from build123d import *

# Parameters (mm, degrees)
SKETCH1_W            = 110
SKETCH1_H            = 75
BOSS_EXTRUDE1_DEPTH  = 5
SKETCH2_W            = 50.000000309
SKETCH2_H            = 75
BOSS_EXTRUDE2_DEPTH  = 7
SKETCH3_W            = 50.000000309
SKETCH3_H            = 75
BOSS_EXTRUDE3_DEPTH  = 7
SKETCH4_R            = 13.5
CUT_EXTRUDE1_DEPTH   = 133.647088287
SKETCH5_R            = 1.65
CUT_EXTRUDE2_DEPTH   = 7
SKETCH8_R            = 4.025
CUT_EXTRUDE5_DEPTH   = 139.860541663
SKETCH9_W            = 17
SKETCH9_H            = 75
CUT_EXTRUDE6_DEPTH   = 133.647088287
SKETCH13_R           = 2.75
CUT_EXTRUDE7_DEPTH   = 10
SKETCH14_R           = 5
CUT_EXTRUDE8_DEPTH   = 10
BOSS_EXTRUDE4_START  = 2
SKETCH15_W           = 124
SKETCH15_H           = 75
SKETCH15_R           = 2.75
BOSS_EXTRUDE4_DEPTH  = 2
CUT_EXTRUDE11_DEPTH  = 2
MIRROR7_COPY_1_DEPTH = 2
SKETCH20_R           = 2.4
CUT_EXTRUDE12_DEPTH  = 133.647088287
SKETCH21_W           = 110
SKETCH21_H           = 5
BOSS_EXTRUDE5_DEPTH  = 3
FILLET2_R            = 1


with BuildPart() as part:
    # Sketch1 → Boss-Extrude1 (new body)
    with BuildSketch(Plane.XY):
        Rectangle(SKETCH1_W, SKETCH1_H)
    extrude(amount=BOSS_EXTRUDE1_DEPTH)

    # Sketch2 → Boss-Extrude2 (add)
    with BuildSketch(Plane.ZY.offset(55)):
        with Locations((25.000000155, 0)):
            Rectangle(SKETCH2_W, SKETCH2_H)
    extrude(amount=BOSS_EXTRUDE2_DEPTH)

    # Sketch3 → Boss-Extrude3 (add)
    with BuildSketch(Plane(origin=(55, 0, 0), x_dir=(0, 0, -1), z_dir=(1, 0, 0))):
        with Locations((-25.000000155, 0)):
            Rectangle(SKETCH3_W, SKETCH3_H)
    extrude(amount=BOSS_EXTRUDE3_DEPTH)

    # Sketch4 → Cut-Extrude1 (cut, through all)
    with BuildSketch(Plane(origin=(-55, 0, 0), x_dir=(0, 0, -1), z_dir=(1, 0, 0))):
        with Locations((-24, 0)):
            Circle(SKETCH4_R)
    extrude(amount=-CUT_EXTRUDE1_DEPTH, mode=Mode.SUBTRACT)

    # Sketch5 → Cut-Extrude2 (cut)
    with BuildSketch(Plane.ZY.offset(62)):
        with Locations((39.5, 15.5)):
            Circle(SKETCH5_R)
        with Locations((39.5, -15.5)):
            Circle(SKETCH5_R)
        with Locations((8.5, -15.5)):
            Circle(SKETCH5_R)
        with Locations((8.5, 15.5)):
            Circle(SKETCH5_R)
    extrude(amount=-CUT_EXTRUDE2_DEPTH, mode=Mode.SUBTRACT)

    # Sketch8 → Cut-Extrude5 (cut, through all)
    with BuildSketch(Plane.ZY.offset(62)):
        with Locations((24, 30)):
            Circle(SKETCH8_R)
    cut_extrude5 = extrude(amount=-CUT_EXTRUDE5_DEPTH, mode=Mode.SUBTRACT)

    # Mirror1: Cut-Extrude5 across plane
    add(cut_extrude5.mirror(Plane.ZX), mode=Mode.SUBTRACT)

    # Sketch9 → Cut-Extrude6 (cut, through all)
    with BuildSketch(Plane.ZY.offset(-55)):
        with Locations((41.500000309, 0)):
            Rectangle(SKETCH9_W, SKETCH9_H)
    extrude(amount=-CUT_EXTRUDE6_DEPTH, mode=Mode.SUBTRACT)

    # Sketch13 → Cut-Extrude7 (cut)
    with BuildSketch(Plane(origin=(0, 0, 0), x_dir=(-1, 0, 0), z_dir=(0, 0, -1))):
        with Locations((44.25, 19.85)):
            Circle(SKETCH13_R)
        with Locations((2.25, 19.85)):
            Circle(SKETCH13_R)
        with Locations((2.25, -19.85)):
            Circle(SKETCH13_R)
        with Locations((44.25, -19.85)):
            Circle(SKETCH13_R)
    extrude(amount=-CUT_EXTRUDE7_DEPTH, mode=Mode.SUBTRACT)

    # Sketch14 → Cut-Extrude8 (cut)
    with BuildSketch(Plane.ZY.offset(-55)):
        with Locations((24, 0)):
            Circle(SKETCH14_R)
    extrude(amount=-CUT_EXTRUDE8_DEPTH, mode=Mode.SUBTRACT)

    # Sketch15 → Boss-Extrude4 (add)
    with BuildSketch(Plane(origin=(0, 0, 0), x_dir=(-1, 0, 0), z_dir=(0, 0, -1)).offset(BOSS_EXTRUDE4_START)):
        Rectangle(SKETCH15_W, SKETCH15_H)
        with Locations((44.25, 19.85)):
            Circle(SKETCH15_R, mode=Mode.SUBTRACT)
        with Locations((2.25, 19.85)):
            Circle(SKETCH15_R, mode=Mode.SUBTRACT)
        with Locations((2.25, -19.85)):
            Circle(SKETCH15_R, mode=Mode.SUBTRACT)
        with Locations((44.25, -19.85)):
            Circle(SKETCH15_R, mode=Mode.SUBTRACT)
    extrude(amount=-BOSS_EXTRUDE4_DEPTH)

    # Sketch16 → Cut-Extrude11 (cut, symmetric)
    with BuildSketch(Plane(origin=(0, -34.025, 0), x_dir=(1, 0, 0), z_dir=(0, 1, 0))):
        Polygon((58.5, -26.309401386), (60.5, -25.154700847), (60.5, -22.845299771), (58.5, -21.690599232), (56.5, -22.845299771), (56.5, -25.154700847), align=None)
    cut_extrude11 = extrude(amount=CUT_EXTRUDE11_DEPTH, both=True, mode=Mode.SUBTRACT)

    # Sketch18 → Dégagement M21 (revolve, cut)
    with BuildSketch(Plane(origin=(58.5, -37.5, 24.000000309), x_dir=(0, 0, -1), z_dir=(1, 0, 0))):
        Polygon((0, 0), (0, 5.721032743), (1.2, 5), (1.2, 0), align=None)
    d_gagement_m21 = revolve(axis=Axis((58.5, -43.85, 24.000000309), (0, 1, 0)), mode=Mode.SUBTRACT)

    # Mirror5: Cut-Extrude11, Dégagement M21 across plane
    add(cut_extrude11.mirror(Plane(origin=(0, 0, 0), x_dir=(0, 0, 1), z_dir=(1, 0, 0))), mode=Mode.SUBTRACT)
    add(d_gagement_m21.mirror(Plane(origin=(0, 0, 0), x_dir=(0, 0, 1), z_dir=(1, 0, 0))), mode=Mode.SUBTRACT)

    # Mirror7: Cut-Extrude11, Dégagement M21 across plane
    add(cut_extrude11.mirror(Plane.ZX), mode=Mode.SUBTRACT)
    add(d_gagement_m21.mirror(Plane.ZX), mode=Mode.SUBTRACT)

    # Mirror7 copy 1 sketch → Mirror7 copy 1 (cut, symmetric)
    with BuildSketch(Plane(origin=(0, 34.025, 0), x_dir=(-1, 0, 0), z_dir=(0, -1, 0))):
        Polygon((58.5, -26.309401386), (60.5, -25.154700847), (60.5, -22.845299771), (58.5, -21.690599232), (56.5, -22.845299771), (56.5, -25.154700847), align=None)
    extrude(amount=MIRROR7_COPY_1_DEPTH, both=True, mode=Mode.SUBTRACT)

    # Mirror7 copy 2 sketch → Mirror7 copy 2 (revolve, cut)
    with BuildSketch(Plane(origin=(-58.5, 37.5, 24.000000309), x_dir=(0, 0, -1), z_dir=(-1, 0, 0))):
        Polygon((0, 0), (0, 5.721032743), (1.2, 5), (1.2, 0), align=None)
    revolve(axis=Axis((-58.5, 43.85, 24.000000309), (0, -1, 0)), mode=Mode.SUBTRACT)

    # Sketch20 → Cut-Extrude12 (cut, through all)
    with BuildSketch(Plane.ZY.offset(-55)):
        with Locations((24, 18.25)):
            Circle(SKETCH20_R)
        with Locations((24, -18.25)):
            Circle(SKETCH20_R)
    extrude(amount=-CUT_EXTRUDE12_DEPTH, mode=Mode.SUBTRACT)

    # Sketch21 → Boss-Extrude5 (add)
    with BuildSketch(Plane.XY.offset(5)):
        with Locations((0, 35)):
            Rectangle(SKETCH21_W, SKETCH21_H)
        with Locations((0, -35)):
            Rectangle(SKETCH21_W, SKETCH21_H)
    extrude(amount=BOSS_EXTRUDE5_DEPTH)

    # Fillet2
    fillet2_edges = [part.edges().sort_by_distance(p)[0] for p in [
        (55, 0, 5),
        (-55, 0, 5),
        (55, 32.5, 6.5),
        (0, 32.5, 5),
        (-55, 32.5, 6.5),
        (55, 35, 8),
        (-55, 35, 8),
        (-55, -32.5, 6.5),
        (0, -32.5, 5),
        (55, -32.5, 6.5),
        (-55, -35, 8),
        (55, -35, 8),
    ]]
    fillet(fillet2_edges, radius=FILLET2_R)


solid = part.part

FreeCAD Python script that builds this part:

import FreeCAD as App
import Part
import Sketcher
from FreeCAD import Vector
Q = App.Units.Quantity


def edges_at(feature, points):
    """Names of the edges that pass closest to the given points."""
    edges = feature.Shape.Edges
    near = lambda p: min(range(len(edges)), key=lambda i: edges[i].distToShape(Part.Vertex(*p))[0])
    return sorted({f"Edge{near(p) + 1}" for p in points})

doc = App.newDocument("Part")
body = doc.addObject("PartDesign::Body", "Body")

sketch1 = body.newObject("Sketcher::SketchObject", "Sketch")
sketch1.AttachmentSupport = (doc.getObject("XY_Plane"), [""])
sketch1.MapMode = "FlatFace"
sketch1.addGeometry([
    Part.LineSegment(Vector(-55, 38, 0), Vector(-55, -38, 0)),
    Part.LineSegment(Vector(-55, -38, 0), Vector(55, -38, 0)),
    Part.LineSegment(Vector(55, -38, 0), Vector(55, 38, 0)),
    Part.LineSegment(Vector(55, 38, 0), Vector(-55, 38, 0)),
], False)
sketch1.addConstraint([
    Sketcher.Constraint("Coincident", 0, 2, 1, 1),
    Sketcher.Constraint("Coincident", 1, 2, 2, 1),
    Sketcher.Constraint("Coincident", 2, 2, 3, 1),
    Sketcher.Constraint("Coincident", 3, 2, 0, 1),
    Sketcher.Constraint("Vertical", 0),
    Sketcher.Constraint("Horizontal", 1),
    Sketcher.Constraint("Vertical", 2),
    Sketcher.Constraint("Horizontal", 3),
    Sketcher.Constraint("Symmetric", 0, 2, 2, 2, -1, 1),
    Sketcher.Constraint("DistanceX", 1, 1, 1, 2, Q("110 mm")),
    Sketcher.Constraint("DistanceY", 0, 2, 0, 1, Q("75 mm")),
])
pad1 = body.newObject("PartDesign::Pad", "Pad")
pad1.Profile = sketch1
pad1.Length = 5

sketch2 = body.newObject("Sketcher::SketchObject", "Sketch001")
sketch2.AttachmentSupport = (doc.getObject("YZ_Plane"), [""])
sketch2.MapMode = "FlatFace"
sketch2.AttachmentOffset = App.Placement(Vector(0, 0, -55), App.Rotation())
sketch2.addGeometry([
    Part.LineSegment(Vector(38, 0, 0), Vector(-38, 0, 0)),
    Part.LineSegment(Vector(-38, 0, 0), Vector(-38, 50, 0)),
    Part.LineSegment(Vector(-38, 50, 0), Vector(38, 50, 0)),
    Part.LineSegment(Vector(38, 50, 0), Vector(38, 0, 0)),
], False)
sketch2.addConstraint([
    Sketcher.Constraint("Coincident", 0, 2, 1, 1),
    Sketcher.Constraint("Coincident", 1, 2, 2, 1),
    Sketcher.Constraint("Coincident", 2, 2, 3, 1),
    Sketcher.Constraint("Coincident", 3, 2, 0, 1),
    Sketcher.Constraint("Horizontal", 0),
    Sketcher.Constraint("Vertical", 1),
    Sketcher.Constraint("Horizontal", 2),
    Sketcher.Constraint("Vertical", 3),
    Sketcher.Constraint("Symmetric", 0, 2, 3, 2, -1, 1),
    Sketcher.Constraint("DistanceX", 0, 2, 0, 1, Q("75 mm")),
    Sketcher.Constraint("DistanceY", 1, 1, 1, 2, Q("50 mm")),
])
pad2 = body.newObject("PartDesign::Pad", "Pad001")
pad2.Profile = sketch2
pad2.Length = 7
pad2.Reversed = True

sketch3 = body.newObject("Sketcher::SketchObject", "Sketch002")
sketch3.AttachmentSupport = (doc.getObject("YZ_Plane"), [""])
sketch3.MapMode = "FlatFace"
sketch3.AttachmentOffset = App.Placement(Vector(0, 0, 55), App.Rotation())
sketch3.addGeometry([
    Part.LineSegment(Vector(38, 50, 0), Vector(-38, 50, 0)),
    Part.LineSegment(Vector(-38, 50, 0), Vector(-38, 0, 0)),
    Part.LineSegment(Vector(-38, 0, 0), Vector(38, 0, 0)),
    Part.LineSegment(Vector(38, 0, 0), Vector(38, 50, 0)),
], False)
sketch3.addConstraint([
    Sketcher.Constraint("Coincident", 0, 2, 1, 1),
    Sketcher.Constraint("Coincident", 1, 2, 2, 1),
    Sketcher.Constraint("Coincident", 2, 2, 3, 1),
    Sketcher.Constraint("Coincident", 3, 2, 0, 1),
    Sketcher.Constraint("Horizontal", 0),
    Sketcher.Constraint("Vertical", 1),
    Sketcher.Constraint("Horizontal", 2),
    Sketcher.Constraint("Vertical", 3),
    Sketcher.Constraint("Symmetric", 1, 2, 2, 2, -1, 1),
    Sketcher.Constraint("DistanceX", 0, 2, 0, 1, Q("75 mm")),
    Sketcher.Constraint("DistanceY", 1, 2, 1, 1, Q("50 mm")),
])
pad3 = body.newObject("PartDesign::Pad", "Pad002")
pad3.Profile = sketch3
pad3.Length = 7

sketch4 = body.newObject("Sketcher::SketchObject", "Sketch003")
sketch4.AttachmentSupport = (doc.getObject("YZ_Plane"), [""])
sketch4.MapMode = "FlatFace"
sketch4.AttachmentOffset = App.Placement(Vector(0, 0, -55), App.Rotation())
sketch4.addGeometry(Part.Circle(Vector(0, 24, 0), Vector(0, 0, 1), 14), False)
sketch4.addConstraint([
    Sketcher.Constraint("PointOnObject", 0, 3, -2),
    Sketcher.Constraint("Diameter", 0, Q("27 mm")),
    Sketcher.Constraint("DistanceY", -1, 1, 0, 3, Q("24 mm")),
])
pocket1 = body.newObject("PartDesign::Pocket", "Pocket")
pocket1.Profile = sketch4
pocket1.Type = "ThroughAll"

sketch5 = body.newObject("Sketcher::SketchObject", "Sketch004")
sketch5.AttachmentSupport = (doc.getObject("YZ_Plane"), [""])
sketch5.MapMode = "FlatFace"
sketch5.AttachmentOffset = App.Placement(Vector(0, 0, -62), App.Rotation())
sketch5.addGeometry([
    Part.Circle(Vector(15.5, 39.5, 0), Vector(0, 0, 1), 1.6),
    Part.Circle(Vector(-15.5, 39.5, 0), Vector(0, 0, 1), 1.6),
    Part.Circle(Vector(-15.5, 8.5, 0), Vector(0, 0, 1), 1.6),
    Part.Circle(Vector(15.5, 8.5, 0), Vector(0, 0, 1), 1.6),
], False)
sketch5.addConstraint([
    Sketcher.Constraint("Equal", 0, 1),
    Sketcher.Constraint("Equal", 1, 2),
    Sketcher.Constraint("Equal", 2, 3),
    Sketcher.Constraint("Symmetric", 0, 3, 1, 3, -2),
    Sketcher.Constraint("Symmetric", 2, 3, 3, 3, -2),
    Sketcher.Constraint("Vertical", 1, 3, 2, 3),
    Sketcher.Constraint("Diameter", 0, Q("3.3 mm")),
    Sketcher.Constraint("DistanceX", 1, 3, 0, 3, Q("31 mm")),
    Sketcher.Constraint("DistanceY", 2, 3, 1, 3, Q("31 mm")),
    Sketcher.Constraint("DistanceY", -1, 1, 0, 3, Q("39.5 mm")),
])
pocket2 = body.newObject("PartDesign::Pocket", "Pocket001")
pocket2.Profile = sketch5
pocket2.Length = 7
pocket2.Reversed = True

sketch6 = body.newObject("Sketcher::SketchObject", "Sketch005")
sketch6.AttachmentSupport = (doc.getObject("YZ_Plane"), [""])
sketch6.MapMode = "FlatFace"
sketch6.AttachmentOffset = App.Placement(Vector(0, 0, -62), App.Rotation())
sketch6.addGeometry(Part.Circle(Vector(30, 24, 0), Vector(0, 0, 1), 4), False)
sketch6.addConstraint([
    Sketcher.Constraint("Diameter", 0, Q("8.05 mm")),
    Sketcher.Constraint("DistanceX", -1, 1, 0, 3, Q("30 mm")),
    Sketcher.Constraint("DistanceY", -1, 1, 0, 3, Q("24 mm")),
])
pocket3 = body.newObject("PartDesign::Pocket", "Pocket002")
pocket3.Profile = sketch6
pocket3.Type = "ThroughAll"
pocket3.Reversed = True
doc.recompute()

mirrored = body.newObject("PartDesign::Mirrored", "Mirrored")
mirrored.Originals = [pocket3]
mirrored.MirrorPlane = (doc.getObject("XZ_Plane"), [""])
body.Tip = mirrored

sketch7 = body.newObject("Sketcher::SketchObject", "Sketch006")
sketch7.AttachmentSupport = (doc.getObject("YZ_Plane"), [""])
sketch7.MapMode = "FlatFace"
sketch7.AttachmentOffset = App.Placement(Vector(0, 0, 55), App.Rotation())
sketch7.addGeometry([
    Part.LineSegment(Vector(38, 33, 0), Vector(-38, 33, 0)),
    Part.LineSegment(Vector(-38, 33, 0), Vector(-38, 50, 0)),
    Part.LineSegment(Vector(-38, 50, 0), Vector(38, 50, 0)),
    Part.LineSegment(Vector(38, 50, 0), Vector(38, 33, 0)),
], False)
sketch7.addConstraint([
    Sketcher.Constraint("Coincident", 0, 2, 1, 1),
    Sketcher.Constraint("Coincident", 1, 2, 2, 1),
    Sketcher.Constraint("Coincident", 2, 2, 3, 1),
    Sketcher.Constraint("Coincident", 3, 2, 0, 1),
    Sketcher.Constraint("Horizontal", 0),
    Sketcher.Constraint("Vertical", 1),
    Sketcher.Constraint("Horizontal", 2),
    Sketcher.Constraint("Vertical", 3),
    Sketcher.Constraint("DistanceX", 0, 2, 0, 1, Q("75 mm")),
    Sketcher.Constraint("DistanceY", 1, 1, 1, 2, Q("17 mm")),
    Sketcher.Constraint("DistanceY", -1, 1, 0, 2, Q("33 mm")),
    Sketcher.Constraint("DistanceX", 0, 2, -1, 1, Q("37.5 mm")),
])
pocket4 = body.newObject("PartDesign::Pocket", "Pocket003")
pocket4.Profile = sketch7
pocket4.Type = "ThroughAll"
pocket4.Reversed = True

sketch8 = body.newObject("Sketcher::SketchObject", "Sketch007")
sketch8.AttachmentSupport = (doc.getObject("XY_Plane"), [""])
sketch8.MapMode = "FlatFace"
sketch8.addGeometry([
    Part.Circle(Vector(-44.2, 19.9, 0), Vector(0, 0, 1), 2.8),
    Part.Circle(Vector(-2.2, 19.9, 0), Vector(0, 0, 1), 2.8),
    Part.Circle(Vector(-2.2, -19.9, 0), Vector(0, 0, 1), 2.8),
    Part.Circle(Vector(-44.2, -19.9, 0), Vector(0, 0, 1), 2.8),
], False)
sketch8.addConstraint([
    Sketcher.Constraint("Equal", 0, 1),
    Sketcher.Constraint("Equal", 1, 2),
    Sketcher.Constraint("Equal", 2, 3),
    Sketcher.Constraint("Symmetric", 1, 3, 2, 3, -1),
    Sketcher.Constraint("Symmetric", 0, 3, 3, 3, -1),
    Sketcher.Constraint("Horizontal", 0, 3, 1, 3),
    Sketcher.Constraint("Diameter", 0, Q("5.5 mm")),
    Sketcher.Constraint("DistanceX", 0, 3, 1, 3, Q("42 mm")),
    Sketcher.Constraint("DistanceY", 2, 3, 1, 3, Q("39.7 mm")),
    Sketcher.Constraint("DistanceX", 0, 3, -1, 1, Q("44.25 mm")),
])
pocket5 = body.newObject("PartDesign::Pocket", "Pocket004")
pocket5.Profile = sketch8
pocket5.Length = 10
pocket5.Reversed = True

sketch9 = body.newObject("Sketcher::SketchObject", "Sketch008")
sketch9.AttachmentSupport = (doc.getObject("YZ_Plane"), [""])
sketch9.MapMode = "FlatFace"
sketch9.AttachmentOffset = App.Placement(Vector(0, 0, 55), App.Rotation())
sketch9.addGeometry(Part.Circle(Vector(0, 24, 0), Vector(0, 0, 1), 5), False)
sketch9.addConstraint([
    Sketcher.Constraint("PointOnObject", 0, 3, -2),
    Sketcher.Constraint("Diameter", 0, Q("10 mm")),
    Sketcher.Constraint("DistanceY", -1, 1, 0, 3, Q("24 mm")),
])
pocket6 = body.newObject("PartDesign::Pocket", "Pocket005")
pocket6.Profile = sketch9
pocket6.Length = 10
pocket6.Reversed = True

sketch10 = body.newObject("Sketcher::SketchObject", "Sketch009")
sketch10.AttachmentSupport = (doc.getObject("XY_Plane"), [""])
sketch10.MapMode = "FlatFace"
sketch10.AttachmentOffset = App.Placement(Vector(0, 0, -2), App.Rotation())
sketch10.addGeometry([
    Part.LineSegment(Vector(62, 37.5, 0), Vector(62, -37.5, 0)),
    Part.LineSegment(Vector(62, -37.5, 0), Vector(-62, -37.5, 0)),
    Part.LineSegment(Vector(-62, -37.5, 0), Vector(-62, 37.5, 0)),
    Part.LineSegment(Vector(-62, 37.5, 0), Vector(62, 37.5, 0)),
    Part.Circle(Vector(-2.2, -19.9, 0), Vector(0, 0, 1), 2.8),
    Part.Circle(Vector(-44.2, -19.9, 0), Vector(0, 0, 1), 2.8),
    Part.Circle(Vector(-2.2, 19.9, 0), Vector(0, 0, 1), 2.8),
    Part.Circle(Vector(-44.2, 19.9, 0), Vector(0, 0, 1), 2.8),
], False)
sketch10.addConstraint([
    Sketcher.Constraint("Coincident", 0, 2, 1, 1),
    Sketcher.Constraint("Coincident", 1, 2, 2, 1),
    Sketcher.Constraint("Coincident", 2, 2, 3, 1),
    Sketcher.Constraint("Coincident", 3, 2, 0, 1),
    Sketcher.Constraint("Vertical", 0),
    Sketcher.Constraint("Horizontal", 1),
    Sketcher.Constraint("Vertical", 2),
    Sketcher.Constraint("Horizontal", 3),
    Sketcher.Constraint("Equal", 4, 5),
    Sketcher.Constraint("Equal", 5, 6),
    Sketcher.Constraint("Equal", 6, 7),
    Sketcher.Constraint("Symmetric", 0, 2, 2, 2, -1, 1),
    Sketcher.Constraint("Symmetric", 4, 3, 6, 3, -1),
    Sketcher.Constraint("Symmetric", 5, 3, 7, 3, -1),
    Sketcher.Constraint("Horizontal", 4, 3, 5, 3),
    Sketcher.Constraint("Diameter", 4, Q("5.5 mm")),
    Sketcher.Constraint("DistanceX", 1, 2, 1, 1, Q("124 mm")),
    Sketcher.Constraint("DistanceY", 0, 2, 0, 1, Q("75 mm")),
    Sketcher.Constraint("DistanceX", 5, 3, 4, 3, Q("42 mm")),
    Sketcher.Constraint("DistanceY", 4, 3, 6, 3, Q("39.7 mm")),
    Sketcher.Constraint("DistanceX", 4, 3, -1, 1, Q("2.25 mm")),
])
pad4 = body.newObject("PartDesign::Pad", "Pad003")
pad4.Profile = sketch10
pad4.Length = 2

sketch11 = body.newObject("Sketcher::SketchObject", "Sketch010")
sketch11.AttachmentSupport = (doc.getObject("XZ_Plane"), [""])
sketch11.MapMode = "FlatFace"
sketch11.AttachmentOffset = App.Placement(Vector(0, 0, 34.025), App.Rotation())
sketch11.addGeometry([
    Part.LineSegment(Vector(58.5, 26.3, 0), Vector(60.5, 25.2, 0)),
    Part.LineSegment(Vector(60.5, 25.2, 0), Vector(60.5, 22.8, 0)),
    Part.LineSegment(Vector(60.5, 22.8, 0), Vector(58.5, 21.7, 0)),
    Part.LineSegment(Vector(58.5, 21.7, 0), Vector(56.5, 22.8, 0)),
    Part.LineSegment(Vector(56.5, 22.8, 0), Vector(56.5, 25.2, 0)),
    Part.LineSegment(Vector(56.5, 25.2, 0), Vector(58.5, 26.3, 0)),
], False)
sketch11.addConstraint([
    Sketcher.Constraint("Coincident", 0, 2, 1, 1),
    Sketcher.Constraint("Coincident", 1, 2, 2, 1),
    Sketcher.Constraint("Coincident", 2, 2, 3, 1),
    Sketcher.Constraint("Coincident", 3, 2, 4, 1),
    Sketcher.Constraint("Coincident", 4, 2, 5, 1),
    Sketcher.Constraint("Coincident", 5, 2, 0, 1),
    Sketcher.Constraint("Vertical", 1),
    Sketcher.Constraint("Vertical", 4),
    Sketcher.Constraint("Parallel", 0, 3),
    Sketcher.Constraint("Parallel", 2, 5),
    Sketcher.Constraint("Horizontal", 1, 2, 3, 2),
    Sketcher.Constraint("Horizontal", 0, 2, 4, 2),
    Sketcher.Constraint("Vertical", 2, 2, 5, 2),
    Sketcher.Constraint("Angle", 0, Q("-30 deg")),
    Sketcher.Constraint("DistanceX", 2, 2, 1, 2, Q("2 mm")),
    Sketcher.Constraint("DistanceX", -1, 1, 0, 2, Q("60.5 mm")),
    Sketcher.Constraint("DistanceY", 1, 2, 1, 1, Q("2.309401 mm")),
    Sketcher.Constraint("DistanceY", -1, 1, 0, 2, Q("25.154701 mm")),
])
pocket7 = body.newObject("PartDesign::Pocket", "Pocket006")
pocket7.Profile = sketch11
pocket7.Length = 4
pocket7.Midplane = True

sketch12 = body.newObject("Sketcher::SketchObject", "Sketch011")
sketch12.AttachmentSupport = (doc.getObject("YZ_Plane"), [""])
sketch12.MapMode = "FlatFace"
sketch12.AttachmentOffset = App.Placement(Vector(0, 0, 58.5), App.Rotation())
sketch12.addGeometry([
    Part.LineSegment(Vector(-31.8, 24, 0), Vector(-37.5, 24, 0)),
    Part.LineSegment(Vector(-37.5, 24, 0), Vector(-37.5, 22.8, 0)),
    Part.LineSegment(Vector(-37.5, 22.8, 0), Vector(-32.5, 22.8, 0)),
    Part.LineSegment(Vector(-32.5, 22.8, 0), Vector(-31.8, 24, 0)),
], False)
sketch12.addGeometry(Part.LineSegment(Vector(-37.5, 24, 0), Vector(-31.8, 24, 0)), True)
sketch12.addConstraint([
    Sketcher.Constraint("Coincident", 0, 2, 1, 1),
    Sketcher.Constraint("Coincident", 1, 2, 2, 1),
    Sketcher.Constraint("Coincident", 2, 2, 3, 1),
    Sketcher.Constraint("Coincident", 3, 2, 0, 1),
    Sketcher.Constraint("Horizontal", 0),
    Sketcher.Constraint("Vertical", 1),
    Sketcher.Constraint("Horizontal", 2),
    Sketcher.Constraint("Horizontal", 4),
    Sketcher.Constraint("Coincident", 4, 1, 0, 2),
    Sketcher.Constraint("Equal", 0, 4),
    Sketcher.Constraint("DistanceX", 2, 1, 2, 2, Q("5 mm")),
    Sketcher.Constraint("Angle", 3, Q("59 deg")),
    Sketcher.Constraint("DistanceY", 1, 2, 1, 1, Q("1.2 mm")),
    Sketcher.Constraint("DistanceY", -1, 1, 0, 2, Q("24 mm")),
    Sketcher.Constraint("DistanceX", 0, 2, -1, 1, Q("37.5 mm")),
])
groove = body.newObject("PartDesign::Groove", "Groove")
groove.Profile = sketch12
groove.ReferenceAxis = (sketch12, ["Axis0"])
groove.Angle = 360
doc.recompute()

mirrored2 = body.newObject("PartDesign::Mirrored", "Mirrored001")
mirrored2.Originals = [pocket7, groove]
mirrored2.MirrorPlane = (doc.getObject("YZ_Plane"), [""])
body.Tip = mirrored2
doc.recompute()

mirrored3 = body.newObject("PartDesign::Mirrored", "Mirrored002")
mirrored3.Originals = [pocket7, groove]
mirrored3.MirrorPlane = (doc.getObject("XZ_Plane"), [""])
body.Tip = mirrored3

sketch13 = body.newObject("Sketcher::SketchObject", "Sketch012")
sketch13.AttachmentSupport = (doc.getObject("XZ_Plane"), [""])
sketch13.MapMode = "FlatFace"
sketch13.AttachmentOffset = App.Placement(Vector(0, 0, -34.025), App.Rotation())
sketch13.addGeometry([
    Part.LineSegment(Vector(-58.5, 26.3, 0), Vector(-60.5, 25.2, 0)),
    Part.LineSegment(Vector(-60.5, 25.2, 0), Vector(-60.5, 22.8, 0)),
    Part.LineSegment(Vector(-60.5, 22.8, 0), Vector(-58.5, 21.7, 0)),
    Part.LineSegment(Vector(-58.5, 21.7, 0), Vector(-56.5, 22.8, 0)),
    Part.LineSegment(Vector(-56.5, 22.8, 0), Vector(-56.5, 25.2, 0)),
    Part.LineSegment(Vector(-56.5, 25.2, 0), Vector(-58.5, 26.3, 0)),
], False)
sketch13.addConstraint([
    Sketcher.Constraint("Coincident", 0, 2, 1, 1),
    Sketcher.Constraint("Coincident", 1, 2, 2, 1),
    Sketcher.Constraint("Coincident", 2, 2, 3, 1),
    Sketcher.Constraint("Coincident", 3, 2, 4, 1),
    Sketcher.Constraint("Coincident", 4, 2, 5, 1),
    Sketcher.Constraint("Coincident", 5, 2, 0, 1),
    Sketcher.Constraint("Vertical", 1),
    Sketcher.Constraint("Vertical", 4),
    Sketcher.Constraint("Parallel", 0, 3),
    Sketcher.Constraint("Parallel", 2, 5),
    Sketcher.Constraint("Horizontal", 1, 2, 3, 2),
    Sketcher.Constraint("Horizontal", 0, 2, 4, 2),
    Sketcher.Constraint("Vertical", 2, 2, 5, 2),
    Sketcher.Constraint("Angle", 0, Q("-150 deg")),
    Sketcher.Constraint("DistanceX", 1, 2, 2, 2, Q("2 mm")),
    Sketcher.Constraint("DistanceX", 0, 2, -1, 1, Q("60.5 mm")),
    Sketcher.Constraint("DistanceY", 1, 2, 1, 1, Q("2.309401 mm")),
    Sketcher.Constraint("DistanceY", -1, 1, 0, 2, Q("25.154701 mm")),
])
pocket8 = body.newObject("PartDesign::Pocket", "Pocket007")
pocket8.Profile = sketch13
pocket8.Length = 4
pocket8.Midplane = True

sketch14 = body.newObject("Sketcher::SketchObject", "Sketch013")
sketch14.AttachmentSupport = (doc.getObject("YZ_Plane"), [""])
sketch14.MapMode = "FlatFace"
sketch14.AttachmentOffset = App.Placement(Vector(0, 0, -58.5), App.Rotation())
sketch14.addGeometry([
    Part.LineSegment(Vector(31.8, 24, 0), Vector(37.5, 24, 0)),
    Part.LineSegment(Vector(37.5, 24, 0), Vector(37.5, 22.8, 0)),
    Part.LineSegment(Vector(37.5, 22.8, 0), Vector(32.5, 22.8, 0)),
    Part.LineSegment(Vector(32.5, 22.8, 0), Vector(31.8, 24, 0)),
], False)
sketch14.addGeometry(Part.LineSegment(Vector(37.5, 24, 0), Vector(31.8, 24, 0)), True)
sketch14.addConstraint([
    Sketcher.Constraint("Coincident", 0, 2, 1, 1),
    Sketcher.Constraint("Coincident", 1, 2, 2, 1),
    Sketcher.Constraint("Coincident", 2, 2, 3, 1),
    Sketcher.Constraint("Coincident", 3, 2, 0, 1),
    Sketcher.Constraint("Horizontal", 0),
    Sketcher.Constraint("Vertical", 1),
    Sketcher.Constraint("Horizontal", 2),
    Sketcher.Constraint("Horizontal", 4),
    Sketcher.Constraint("Coincident", 4, 1, 0, 2),
    Sketcher.Constraint("Equal", 0, 4),
    Sketcher.Constraint("DistanceX", 2, 2, 2, 1, Q("5 mm")),
    Sketcher.Constraint("Angle", 3, Q("121 deg")),
    Sketcher.Constraint("DistanceY", 1, 2, 1, 1, Q("1.2 mm")),
    Sketcher.Constraint("DistanceY", -1, 1, 0, 2, Q("24 mm")),
    Sketcher.Constraint("DistanceX", -1, 1, 0, 2, Q("37.5 mm")),
])
groove2 = body.newObject("PartDesign::Groove", "Groove001")
groove2.Profile = sketch14
groove2.ReferenceAxis = (sketch14, ["Axis0"])
groove2.Angle = 360

sketch15 = body.newObject("Sketcher::SketchObject", "Sketch014")
sketch15.AttachmentSupport = (doc.getObject("YZ_Plane"), [""])
sketch15.MapMode = "FlatFace"
sketch15.AttachmentOffset = App.Placement(Vector(0, 0, 55), App.Rotation())
sketch15.addGeometry([
    Part.Circle(Vector(18.2, 24, 0), Vector(0, 0, 1), 2.4),
    Part.Circle(Vector(-18.2, 24, 0), Vector(0, 0, 1), 2.4),
], False)
sketch15.addConstraint([
    Sketcher.Constraint("Equal", 0, 1),
    Sketcher.Constraint("Symmetric", 0, 3, 1, 3, -2),
    Sketcher.Constraint("Diameter", 0, Q("4.8 mm")),
    Sketcher.Constraint("DistanceY", -1, 1, 0, 3, Q("24 mm")),
    Sketcher.Constraint("DistanceX", 1, 3, 0, 3, Q("36.5 mm")),
])
pocket9 = body.newObject("PartDesign::Pocket", "Pocket008")
pocket9.Profile = sketch15
pocket9.Type = "ThroughAll"
pocket9.Reversed = True

sketch16 = body.newObject("Sketcher::SketchObject", "Sketch015")
sketch16.AttachmentSupport = (doc.getObject("XY_Plane"), [""])
sketch16.MapMode = "FlatFace"
sketch16.AttachmentOffset = App.Placement(Vector(0, 0, 5), App.Rotation())
sketch16.addGeometry([
    Part.LineSegment(Vector(-55, 38, 0), Vector(-55, 32, 0)),
    Part.LineSegment(Vector(-55, 32, 0), Vector(55, 32, 0)),
    Part.LineSegment(Vector(55, 32, 0), Vector(55, 38, 0)),
    Part.LineSegment(Vector(55, 38, 0), Vector(-55, 38, 0)),
    Part.LineSegment(Vector(-55, -32, 0), Vector(-55, -38, 0)),
    Part.LineSegment(Vector(-55, -38, 0), Vector(55, -38, 0)),
    Part.LineSegment(Vector(55, -38, 0), Vector(55, -32, 0)),
    Part.LineSegment(Vector(55, -32, 0), Vector(-55, -32, 0)),
], False)
sketch16.addConstraint([
    Sketcher.Constraint("Coincident", 0, 2, 1, 1),
    Sketcher.Constraint("Coincident", 1, 2, 2, 1),
    Sketcher.Constraint("Coincident", 2, 2, 3, 1),
    Sketcher.Constraint("Coincident", 3, 2, 0, 1),
    Sketcher.Constraint("Coincident", 4, 2, 5, 1),
    Sketcher.Constraint("Coincident", 5, 2, 6, 1),
    Sketcher.Constraint("Coincident", 6, 2, 7, 1),
    Sketcher.Constraint("Coincident", 7, 2, 4, 1),
    Sketcher.Constraint("Vertical", 0),
    Sketcher.Constraint("Horizontal", 1),
    Sketcher.Constraint("Vertical", 2),
    Sketcher.Constraint("Horizontal", 3),
    Sketcher.Constraint("Vertical", 4),
    Sketcher.Constraint("Horizontal", 5),
    Sketcher.Constraint("Vertical", 6),
    Sketcher.Constraint("Horizontal", 7),
    Sketcher.Constraint("Symmetric", 2, 2, 4, 2, -1, 1),
    Sketcher.Constraint("Symmetric", 0, 2, 6, 2, -1, 1),
    Sketcher.Constraint("Vertical", 3, 2, 4, 2),
    Sketcher.Constraint("DistanceX", 1, 1, 1, 2, Q("110 mm")),
    Sketcher.Constraint("DistanceY", 0, 2, 0, 1, Q("5 mm")),
    Sketcher.Constraint("DistanceY", 4, 2, 0, 2, Q("70 mm")),
])
pad5 = body.newObject("PartDesign::Pad", "Pad004")
pad5.Profile = sketch16
pad5.Length = 3
doc.recompute()

fillet = body.newObject("PartDesign::Fillet", "Fillet")
fillet.Base = (pad5, edges_at(pad5, [
    (55, 0, 5),
    (-55, 0, 5),
    (55, 32.5, 6.5),
    (0, 32.5, 5),
    (-55, 32.5, 6.5),
    (55, 35, 8),
    (-55, 35, 8),
    (-55, -32.5, 6.5),
    (0, -32.5, 5),
    (55, -32.5, 6.5),
    (-55, -35, 8),
    (55, -35, 8),
]))
fillet.Radius = 1

doc.recompute()
